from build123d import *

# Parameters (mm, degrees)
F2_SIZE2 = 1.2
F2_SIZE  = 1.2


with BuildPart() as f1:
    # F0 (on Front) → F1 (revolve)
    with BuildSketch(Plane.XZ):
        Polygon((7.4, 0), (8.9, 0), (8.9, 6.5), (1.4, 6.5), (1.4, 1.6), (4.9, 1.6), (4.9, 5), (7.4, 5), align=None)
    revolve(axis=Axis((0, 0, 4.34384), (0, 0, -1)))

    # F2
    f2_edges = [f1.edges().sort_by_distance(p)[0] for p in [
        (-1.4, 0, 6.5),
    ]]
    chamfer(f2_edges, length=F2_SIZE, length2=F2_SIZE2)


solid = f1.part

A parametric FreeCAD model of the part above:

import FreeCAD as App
import Part
import Sketcher


def edges_at(feature, points):
    """Names of the edges that pass closest to the given points."""
    edges = feature.Shape.Edges
    near = lambda p: min(range(len(edges)), key=lambda i: edges[i].distToShape(Part.Vertex(*p))[0])
    return sorted({f"Edge{near(p) + 1}" for p in points})


def add_polygon(sketch, points):
    """Adds a closed chain of lines whose ends are joined by coincident constraints."""
    first, n = sketch.GeometryCount, len(points)
    for a, b in zip(points, points[1:] + points[:1]):
        sketch.addGeometry(Part.LineSegment(App.Vector(*a, 0), App.Vector(*b, 0)), False)
    for i in range(n):
        sketch.addConstraint(Sketcher.Constraint("Coincident", first + i, 2, first + (i + 1) % n, 1))

doc = App.newDocument("Part")
params = doc.addObject("Spreadsheet::Sheet", "Params")
for row, (alias, value) in enumerate([
    ("sketch1_height", "5 mm"),
    ("sketch1_width", "1.5 mm"),
    ("sketch1_width2", "7.5 mm"),
    ("sketch1_width3", "3.5 mm"),
    ("sketch1_height2", "6.5 mm"),
    ("revolution_angle", "360 deg"),
    ("chamfer_size", "1.2 mm"),
    ("chamfer_size2", "1.2 mm"),
], start=1):
    params.set(f"A{row}", alias)
    params.set(f"B{row}", "=" + value)
    params.setAlias(f"B{row}", alias)

body = doc.addObject("PartDesign::Body", "Body")

# Sketch on XZ plane
sketch1 = body.newObject("Sketcher::SketchObject", "Sketch")
sketch1.AttachmentSupport = (doc.getObject("XZ_Plane"), [""])
sketch1.MapMode = "FlatFace"
add_polygon(sketch1, [(7.4, 0), (8.9, 0), (8.9, 6.5), (1.4, 6.5), (1.4, 1.6), (4.9, 1.6), (4.9, 5), (7.4, 5)])  # lines 0-7
sketch1.addConstraint([
    Sketcher.Constraint("Horizontal", 0),
    Sketcher.Constraint("Vertical", 1),
    Sketcher.Constraint("Horizontal", 2),
    Sketcher.Constraint("Vertical", 3),
    Sketcher.Constraint("Horizontal", 4),
    Sketcher.Constraint("Vertical", 5),
    Sketcher.Constraint("Horizontal", 6),
    Sketcher.Constraint("Vertical", 7),
    Sketcher.Constraint("PointOnObject", 0, 2, -1),
    Sketcher.Constraint("DistanceY", 7, 2, 7, 1, 5.0),
    Sketcher.Constraint("DistanceX", 0, 1, 0, 2, 1.5),
    Sketcher.Constraint("DistanceX", 2, 2, 2, 1, 7.5),
    Sketcher.Constraint("DistanceX", 4, 1, 4, 2, 3.5),
    Sketcher.Constraint("DistanceY", 1, 1, 1, 2, 6.5),
    Sketcher.Constraint("DistanceY", 3, 2, 3, 1, 4.9),
    Sketcher.Constraint("DistanceX", -1, 1, 0, 2, 8.9),
])
sketch1.setExpression("Constraints[17]", "Params.sketch1_height")
sketch1.setExpression("Constraints[18]", "Params.sketch1_width")
sketch1.setExpression("Constraints[19]", "Params.sketch1_width2")
sketch1.setExpression("Constraints[20]", "Params.sketch1_width3")
sketch1.setExpression("Constraints[21]", "Params.sketch1_height2")
revolution = body.newObject("PartDesign::Revolution", "Revolution")
revolution.Profile = sketch1
revolution.ReferenceAxis = (sketch1, ["V_Axis"])
revolution.setExpression("Angle", "Params.revolution_angle")
doc.recompute()

chamfer = body.newObject("PartDesign::Chamfer", "Chamfer")
chamfer.Base = (revolution, edges_at(revolution, [(-1.4, 0, 6.5)]))
chamfer.ChamferType = "Two distances"
chamfer.setExpression("Size", "Params.chamfer_size")
chamfer.setExpression("Size2", "Params.chamfer_size2")

doc.recompute()
